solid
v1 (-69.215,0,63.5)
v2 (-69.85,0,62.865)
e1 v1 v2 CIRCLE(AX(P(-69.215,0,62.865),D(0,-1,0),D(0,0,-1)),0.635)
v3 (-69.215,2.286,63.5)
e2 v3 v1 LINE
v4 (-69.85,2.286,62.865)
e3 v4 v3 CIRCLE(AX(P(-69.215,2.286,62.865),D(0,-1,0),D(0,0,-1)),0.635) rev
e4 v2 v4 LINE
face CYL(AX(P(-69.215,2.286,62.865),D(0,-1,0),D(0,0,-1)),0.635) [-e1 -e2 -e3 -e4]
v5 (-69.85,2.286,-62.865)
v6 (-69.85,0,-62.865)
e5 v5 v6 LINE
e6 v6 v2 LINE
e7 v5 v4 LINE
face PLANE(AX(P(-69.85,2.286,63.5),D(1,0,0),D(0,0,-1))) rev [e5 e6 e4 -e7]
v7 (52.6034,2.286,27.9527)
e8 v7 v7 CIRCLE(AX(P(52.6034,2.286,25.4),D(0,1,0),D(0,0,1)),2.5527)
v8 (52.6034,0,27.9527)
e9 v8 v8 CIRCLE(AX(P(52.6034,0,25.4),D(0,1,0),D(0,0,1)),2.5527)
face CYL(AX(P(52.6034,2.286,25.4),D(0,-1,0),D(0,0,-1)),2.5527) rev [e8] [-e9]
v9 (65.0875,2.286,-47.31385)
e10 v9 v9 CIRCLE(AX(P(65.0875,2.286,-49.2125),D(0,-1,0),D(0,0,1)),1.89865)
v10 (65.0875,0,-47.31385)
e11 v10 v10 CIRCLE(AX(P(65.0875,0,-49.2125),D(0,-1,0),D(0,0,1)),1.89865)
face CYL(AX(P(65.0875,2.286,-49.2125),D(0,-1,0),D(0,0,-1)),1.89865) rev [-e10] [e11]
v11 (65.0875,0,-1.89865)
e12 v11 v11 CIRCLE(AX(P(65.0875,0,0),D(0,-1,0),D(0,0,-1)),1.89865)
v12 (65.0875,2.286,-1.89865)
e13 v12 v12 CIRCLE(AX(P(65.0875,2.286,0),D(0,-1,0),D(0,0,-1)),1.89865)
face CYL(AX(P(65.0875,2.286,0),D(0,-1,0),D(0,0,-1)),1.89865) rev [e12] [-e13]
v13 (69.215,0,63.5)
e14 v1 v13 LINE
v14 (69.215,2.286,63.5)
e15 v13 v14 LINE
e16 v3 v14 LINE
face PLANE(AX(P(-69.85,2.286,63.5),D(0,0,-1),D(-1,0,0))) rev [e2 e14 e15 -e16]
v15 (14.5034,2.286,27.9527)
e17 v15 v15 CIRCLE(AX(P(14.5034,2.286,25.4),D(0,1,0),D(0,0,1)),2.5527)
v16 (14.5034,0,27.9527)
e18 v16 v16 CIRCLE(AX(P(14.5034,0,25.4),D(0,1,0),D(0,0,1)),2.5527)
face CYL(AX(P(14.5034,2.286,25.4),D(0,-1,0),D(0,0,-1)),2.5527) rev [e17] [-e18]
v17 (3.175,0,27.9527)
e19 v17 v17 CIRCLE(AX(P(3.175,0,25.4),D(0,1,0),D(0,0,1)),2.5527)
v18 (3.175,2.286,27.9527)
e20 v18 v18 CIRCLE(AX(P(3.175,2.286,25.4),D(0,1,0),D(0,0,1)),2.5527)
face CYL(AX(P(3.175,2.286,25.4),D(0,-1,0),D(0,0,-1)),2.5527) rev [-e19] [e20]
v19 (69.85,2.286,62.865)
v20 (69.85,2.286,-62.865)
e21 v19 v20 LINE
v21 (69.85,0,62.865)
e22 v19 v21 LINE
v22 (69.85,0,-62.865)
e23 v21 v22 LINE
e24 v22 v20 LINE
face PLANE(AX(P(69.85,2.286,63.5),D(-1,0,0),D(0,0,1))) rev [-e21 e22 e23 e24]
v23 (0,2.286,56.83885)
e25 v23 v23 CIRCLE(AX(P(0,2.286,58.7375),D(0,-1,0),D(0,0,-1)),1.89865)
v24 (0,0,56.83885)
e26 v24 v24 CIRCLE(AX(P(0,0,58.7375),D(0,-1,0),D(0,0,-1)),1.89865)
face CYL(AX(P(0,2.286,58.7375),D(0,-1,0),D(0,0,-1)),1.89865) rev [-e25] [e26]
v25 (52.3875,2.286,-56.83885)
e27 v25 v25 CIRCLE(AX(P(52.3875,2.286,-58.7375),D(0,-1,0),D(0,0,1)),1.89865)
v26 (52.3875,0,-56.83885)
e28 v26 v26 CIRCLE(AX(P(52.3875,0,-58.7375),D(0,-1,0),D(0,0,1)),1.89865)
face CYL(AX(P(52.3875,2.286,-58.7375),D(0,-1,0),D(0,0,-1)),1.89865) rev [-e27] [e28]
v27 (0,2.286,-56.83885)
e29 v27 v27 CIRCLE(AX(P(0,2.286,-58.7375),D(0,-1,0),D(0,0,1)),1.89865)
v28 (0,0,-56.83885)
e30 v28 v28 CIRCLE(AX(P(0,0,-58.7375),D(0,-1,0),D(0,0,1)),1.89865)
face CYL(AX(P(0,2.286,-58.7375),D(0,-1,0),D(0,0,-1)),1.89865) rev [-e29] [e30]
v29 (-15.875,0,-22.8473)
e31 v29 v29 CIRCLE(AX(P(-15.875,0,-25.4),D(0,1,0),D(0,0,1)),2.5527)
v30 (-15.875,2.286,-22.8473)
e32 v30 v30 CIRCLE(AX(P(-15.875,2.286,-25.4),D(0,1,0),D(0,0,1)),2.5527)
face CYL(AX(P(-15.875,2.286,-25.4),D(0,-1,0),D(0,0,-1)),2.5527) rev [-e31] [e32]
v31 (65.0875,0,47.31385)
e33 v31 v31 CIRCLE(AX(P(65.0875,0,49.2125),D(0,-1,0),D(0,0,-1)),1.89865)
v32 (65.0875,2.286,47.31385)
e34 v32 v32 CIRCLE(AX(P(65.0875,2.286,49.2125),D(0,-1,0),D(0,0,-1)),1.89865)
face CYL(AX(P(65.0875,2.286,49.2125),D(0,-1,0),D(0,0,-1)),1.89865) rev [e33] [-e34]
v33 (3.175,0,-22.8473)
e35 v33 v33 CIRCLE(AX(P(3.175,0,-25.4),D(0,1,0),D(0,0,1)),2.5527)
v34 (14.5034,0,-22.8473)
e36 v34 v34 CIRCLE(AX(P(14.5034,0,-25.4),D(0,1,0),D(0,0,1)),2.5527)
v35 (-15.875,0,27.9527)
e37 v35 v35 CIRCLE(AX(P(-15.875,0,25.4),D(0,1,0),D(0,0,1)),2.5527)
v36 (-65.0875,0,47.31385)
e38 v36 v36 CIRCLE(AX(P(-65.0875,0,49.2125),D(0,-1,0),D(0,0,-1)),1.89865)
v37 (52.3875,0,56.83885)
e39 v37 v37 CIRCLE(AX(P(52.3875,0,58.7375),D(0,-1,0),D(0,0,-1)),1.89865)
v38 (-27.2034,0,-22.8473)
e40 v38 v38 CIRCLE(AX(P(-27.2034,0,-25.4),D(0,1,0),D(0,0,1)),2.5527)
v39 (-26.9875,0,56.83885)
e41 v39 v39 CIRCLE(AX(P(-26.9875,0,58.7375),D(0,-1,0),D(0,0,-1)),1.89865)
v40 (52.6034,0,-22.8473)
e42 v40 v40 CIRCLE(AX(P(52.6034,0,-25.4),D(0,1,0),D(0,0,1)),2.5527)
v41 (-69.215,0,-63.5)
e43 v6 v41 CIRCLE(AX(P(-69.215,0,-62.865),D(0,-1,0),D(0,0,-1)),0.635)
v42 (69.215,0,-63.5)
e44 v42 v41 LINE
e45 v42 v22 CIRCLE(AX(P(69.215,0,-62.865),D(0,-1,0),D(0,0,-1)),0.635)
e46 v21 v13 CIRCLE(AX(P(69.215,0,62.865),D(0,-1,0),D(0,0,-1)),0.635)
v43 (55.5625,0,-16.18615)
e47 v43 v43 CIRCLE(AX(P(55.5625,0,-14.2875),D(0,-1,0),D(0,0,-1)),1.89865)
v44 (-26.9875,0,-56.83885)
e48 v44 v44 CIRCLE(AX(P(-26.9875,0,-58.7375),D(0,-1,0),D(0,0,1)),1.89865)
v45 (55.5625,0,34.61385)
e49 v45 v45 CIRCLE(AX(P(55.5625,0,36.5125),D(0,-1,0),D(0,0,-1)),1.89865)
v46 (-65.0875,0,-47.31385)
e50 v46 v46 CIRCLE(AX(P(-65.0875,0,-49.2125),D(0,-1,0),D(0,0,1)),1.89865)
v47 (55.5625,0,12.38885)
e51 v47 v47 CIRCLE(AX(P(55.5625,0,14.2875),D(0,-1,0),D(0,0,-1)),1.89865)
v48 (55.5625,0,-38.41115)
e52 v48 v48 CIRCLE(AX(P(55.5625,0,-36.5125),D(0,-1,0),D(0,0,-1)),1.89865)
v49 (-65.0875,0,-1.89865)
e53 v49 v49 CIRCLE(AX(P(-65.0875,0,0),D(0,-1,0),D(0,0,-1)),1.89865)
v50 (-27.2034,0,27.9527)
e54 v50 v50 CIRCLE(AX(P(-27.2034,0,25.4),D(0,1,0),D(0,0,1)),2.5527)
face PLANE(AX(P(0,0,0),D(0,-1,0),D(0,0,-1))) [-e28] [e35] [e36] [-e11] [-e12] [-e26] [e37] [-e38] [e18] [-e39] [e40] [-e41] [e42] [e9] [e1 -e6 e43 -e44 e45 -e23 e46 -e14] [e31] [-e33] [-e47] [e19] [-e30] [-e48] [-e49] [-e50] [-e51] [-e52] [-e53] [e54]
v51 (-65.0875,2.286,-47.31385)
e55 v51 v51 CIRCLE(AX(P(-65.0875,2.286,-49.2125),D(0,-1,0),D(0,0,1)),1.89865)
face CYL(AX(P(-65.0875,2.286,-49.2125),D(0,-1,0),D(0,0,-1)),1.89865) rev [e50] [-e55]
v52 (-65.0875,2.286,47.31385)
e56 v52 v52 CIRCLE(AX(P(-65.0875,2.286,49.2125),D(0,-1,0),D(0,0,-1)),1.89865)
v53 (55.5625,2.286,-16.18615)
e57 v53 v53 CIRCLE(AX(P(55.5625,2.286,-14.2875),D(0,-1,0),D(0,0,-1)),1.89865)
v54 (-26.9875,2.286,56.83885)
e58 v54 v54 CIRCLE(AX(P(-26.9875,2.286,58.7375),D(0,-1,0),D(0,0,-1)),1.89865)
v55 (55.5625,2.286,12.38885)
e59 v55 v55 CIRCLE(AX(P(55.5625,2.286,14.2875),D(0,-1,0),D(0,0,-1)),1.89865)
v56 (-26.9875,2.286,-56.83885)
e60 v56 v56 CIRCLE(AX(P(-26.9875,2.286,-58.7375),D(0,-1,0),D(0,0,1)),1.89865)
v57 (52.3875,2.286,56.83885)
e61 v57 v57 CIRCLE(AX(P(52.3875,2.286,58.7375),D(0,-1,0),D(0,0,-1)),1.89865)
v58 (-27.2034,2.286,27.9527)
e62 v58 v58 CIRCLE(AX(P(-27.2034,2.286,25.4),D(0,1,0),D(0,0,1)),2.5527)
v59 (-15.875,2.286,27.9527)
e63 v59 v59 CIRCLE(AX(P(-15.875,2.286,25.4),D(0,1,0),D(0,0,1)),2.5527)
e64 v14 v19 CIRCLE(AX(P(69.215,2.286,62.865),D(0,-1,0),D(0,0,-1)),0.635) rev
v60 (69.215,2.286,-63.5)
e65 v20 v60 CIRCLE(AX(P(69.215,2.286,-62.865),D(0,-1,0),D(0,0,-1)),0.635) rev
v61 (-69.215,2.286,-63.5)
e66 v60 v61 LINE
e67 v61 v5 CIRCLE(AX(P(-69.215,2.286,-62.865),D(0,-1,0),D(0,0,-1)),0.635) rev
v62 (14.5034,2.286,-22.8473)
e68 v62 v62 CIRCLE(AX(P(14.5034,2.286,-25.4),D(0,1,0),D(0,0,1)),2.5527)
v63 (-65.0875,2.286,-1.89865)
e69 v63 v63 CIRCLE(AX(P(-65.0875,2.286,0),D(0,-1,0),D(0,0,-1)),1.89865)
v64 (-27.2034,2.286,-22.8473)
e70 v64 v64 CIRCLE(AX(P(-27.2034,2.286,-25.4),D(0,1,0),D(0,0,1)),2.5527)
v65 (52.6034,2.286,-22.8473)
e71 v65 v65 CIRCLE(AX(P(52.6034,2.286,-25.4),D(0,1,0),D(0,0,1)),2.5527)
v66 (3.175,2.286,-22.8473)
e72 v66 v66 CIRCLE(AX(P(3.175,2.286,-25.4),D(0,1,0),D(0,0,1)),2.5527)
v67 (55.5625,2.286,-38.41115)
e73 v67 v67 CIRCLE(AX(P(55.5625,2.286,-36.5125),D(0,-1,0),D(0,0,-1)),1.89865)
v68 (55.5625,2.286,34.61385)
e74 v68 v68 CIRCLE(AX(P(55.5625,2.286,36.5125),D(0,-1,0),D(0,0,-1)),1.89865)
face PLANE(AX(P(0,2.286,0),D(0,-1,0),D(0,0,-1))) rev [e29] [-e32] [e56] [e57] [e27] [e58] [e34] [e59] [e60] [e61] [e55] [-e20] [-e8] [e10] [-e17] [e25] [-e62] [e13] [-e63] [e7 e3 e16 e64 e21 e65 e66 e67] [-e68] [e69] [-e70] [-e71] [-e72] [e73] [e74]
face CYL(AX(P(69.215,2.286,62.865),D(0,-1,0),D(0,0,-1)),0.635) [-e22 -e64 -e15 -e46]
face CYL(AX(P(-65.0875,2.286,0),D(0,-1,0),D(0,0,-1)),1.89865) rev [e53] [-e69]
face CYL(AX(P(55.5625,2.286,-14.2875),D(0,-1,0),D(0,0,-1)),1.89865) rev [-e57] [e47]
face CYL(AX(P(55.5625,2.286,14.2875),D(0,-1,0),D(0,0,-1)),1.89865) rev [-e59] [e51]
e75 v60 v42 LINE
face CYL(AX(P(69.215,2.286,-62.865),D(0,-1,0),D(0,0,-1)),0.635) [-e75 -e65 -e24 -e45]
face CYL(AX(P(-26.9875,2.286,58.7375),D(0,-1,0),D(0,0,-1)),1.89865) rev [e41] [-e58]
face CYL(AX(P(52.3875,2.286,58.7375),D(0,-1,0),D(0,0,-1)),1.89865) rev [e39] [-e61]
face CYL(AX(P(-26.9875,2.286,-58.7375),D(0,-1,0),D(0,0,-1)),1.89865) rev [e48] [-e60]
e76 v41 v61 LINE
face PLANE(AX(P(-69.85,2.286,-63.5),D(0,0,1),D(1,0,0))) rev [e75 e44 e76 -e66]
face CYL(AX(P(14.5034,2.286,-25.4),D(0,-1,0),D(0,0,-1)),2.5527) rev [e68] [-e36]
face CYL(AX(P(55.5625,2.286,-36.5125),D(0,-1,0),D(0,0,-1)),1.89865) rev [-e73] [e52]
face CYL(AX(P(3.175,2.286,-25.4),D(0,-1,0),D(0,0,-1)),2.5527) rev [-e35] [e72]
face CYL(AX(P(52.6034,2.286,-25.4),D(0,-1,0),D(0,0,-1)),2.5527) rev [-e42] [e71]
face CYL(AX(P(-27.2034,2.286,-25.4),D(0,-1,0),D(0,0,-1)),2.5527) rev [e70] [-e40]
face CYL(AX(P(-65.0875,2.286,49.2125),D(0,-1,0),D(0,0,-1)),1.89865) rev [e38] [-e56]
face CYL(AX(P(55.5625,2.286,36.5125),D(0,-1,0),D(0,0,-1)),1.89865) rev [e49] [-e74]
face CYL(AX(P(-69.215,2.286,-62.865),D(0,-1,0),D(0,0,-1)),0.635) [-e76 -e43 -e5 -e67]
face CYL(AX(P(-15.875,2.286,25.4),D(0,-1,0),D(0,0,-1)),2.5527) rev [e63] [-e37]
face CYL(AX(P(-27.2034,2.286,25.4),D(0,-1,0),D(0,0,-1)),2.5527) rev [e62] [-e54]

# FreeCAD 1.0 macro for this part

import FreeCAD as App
import Part
import Sketcher

V = App.Vector
Q = App.Units.Quantity


def edges_at(feature, points):
    """Names of the edges that pass closest to the given points."""
    edges = feature.Shape.Edges
    near = lambda p: min(range(len(edges)), key=lambda i: edges[i].distToShape(Part.Vertex(*p))[0])
    return sorted({f"Edge{near(p) + 1}" for p in points})

doc = App.newDocument("Part")
params = doc.addObject("Spreadsheet::Sheet", "Params")
for row, (alias, value) in enumerate([
    ("sketch1_height", "5 in"),
    ("sketch1_diameter", "0.201 in"),
    ("sketch1_width", "5.5 in"),
    ("pad1_length", "0.09 in"),
    ("fillet_radius", "0.025 in"),
], start=1):
    params.set(f"A{row}", alias)
    params.set(f"B{row}", "=" + value)
    params.setAlias(f"B{row}", alias)

body = doc.addObject("PartDesign::Body", "Body")

sketch1 = body.newObject("Sketcher::SketchObject", "Sketch")
sketch1.AttachmentSupport = (doc.getObject("XZ_Plane"), [""])
sketch1.MapMode = "FlatFace"
sketch1.addGeometry(Part.LineSegment(V(-69.8, -63.5, 0), V(-69.8, 63.5, 0)), False)
sketch1.addGeometry(Part.LineSegment(V(-69.8, 63.5, 0), V(69.8, 63.5, 0)), False)
sketch1.addGeometry(Part.LineSegment(V(69.8, 63.5, 0), V(69.8, -63.5, 0)), False)
sketch1.addGeometry(Part.LineSegment(V(69.8, -63.5, 0), V(-69.8, -63.5, 0)), False)
sketch1.addGeometry(Part.Circle(V(-27.2, 25.4, 0), V(0, 0, 1), 2.6), False)
sketch1.addGeometry(Part.Circle(V(-15.9, 25.4, 0), V(0, 0, 1), 2.6), False)
sketch1.addGeometry(Part.Circle(V(3.2, 25.4, 0), V(0, 0, 1), 2.6), False)
sketch1.addGeometry(Part.Circle(V(14.5, 25.4, 0), V(0, 0, 1), 2.6), False)
sketch1.addGeometry(Part.Circle(V(52.6, 25.4, 0), V(0, 0, 1), 2.6), False)
sketch1.addGeometry(Part.Circle(V(-27.2, -25.4, 0), V(0, 0, 1), 2.6), False)
sketch1.addGeometry(Part.Circle(V(-15.9, -25.4, 0), V(0, 0, 1), 2.6), False)
sketch1.addGeometry(Part.Circle(V(3.2, -25.4, 0), V(0, 0, 1), 2.6), False)
sketch1.addGeometry(Part.Circle(V(14.5, -25.4, 0), V(0, 0, 1), 2.6), False)
sketch1.addGeometry(Part.Circle(V(52.6, -25.4, 0), V(0, 0, 1), 2.6), False)
sketch1.addConstraint(Sketcher.Constraint("Coincident", 0, 2, 1, 1))
sketch1.addConstraint(Sketcher.Constraint("Coincident", 1, 2, 2, 1))
sketch1.addConstraint(Sketcher.Constraint("Coincident", 2, 2, 3, 1))
sketch1.addConstraint(Sketcher.Constraint("Coincident", 3, 2, 0, 1))
sketch1.addConstraint(Sketcher.Constraint("Vertical", 0))
sketch1.addConstraint(Sketcher.Constraint("Horizontal", 1))
sketch1.addConstraint(Sketcher.Constraint("Vertical", 2))
sketch1.addConstraint(Sketcher.Constraint("Horizontal", 3))
sketch1.addConstraint(Sketcher.Constraint("Equal", 4, 5))
sketch1.addConstraint(Sketcher.Constraint("Equal", 5, 6))
sketch1.addConstraint(Sketcher.Constraint("Equal", 6, 7))
sketch1.addConstraint(Sketcher.Constraint("Equal", 7, 8))
sketch1.addConstraint(Sketcher.Constraint("Equal", 8, 9))
sketch1.addConstraint(Sketcher.Constraint("Equal", 9, 10))
sketch1.addConstraint(Sketcher.Constraint("Equal", 10, 11))
sketch1.addConstraint(Sketcher.Constraint("Equal", 11, 12))
sketch1.addConstraint(Sketcher.Constraint("Equal", 12, 13))
sketch1.addConstraint(Sketcher.Constraint("Symmetric", 0, 2, 2, 2, -1, 1))
sketch1.addConstraint(Sketcher.Constraint("Symmetric", 4, 3, 9, 3, -1))
sketch1.addConstraint(Sketcher.Constraint("Symmetric", 5, 3, 10, 3, -1))
sketch1.addConstraint(Sketcher.Constraint("Symmetric", 6, 3, 11, 3, -1))
sketch1.addConstraint(Sketcher.Constraint("Symmetric", 7, 3, 12, 3, -1))
sketch1.addConstraint(Sketcher.Constraint("Symmetric", 8, 3, 13, 3, -1))
sketch1.addConstraint(Sketcher.Constraint("Horizontal", 4, 3, 5, 3))
sketch1.addConstraint(Sketcher.Constraint("Horizontal", 5, 3, 6, 3))
sketch1.addConstraint(Sketcher.Constraint("Horizontal", 6, 3, 7, 3))
sketch1.addConstraint(Sketcher.Constraint("Horizontal", 7, 3, 8, 3))
sketch1.addConstraint(Sketcher.Constraint("DistanceY", 0, 1, 0, 2, Q("5 in")))
sketch1.addConstraint(Sketcher.Constraint("Diameter", 4, Q("0.201 in")))
sketch1.addConstraint(Sketcher.Constraint("DistanceX", 1, 1, 1, 2, Q("5.5 in")))
sketch1.addConstraint(Sketcher.Constraint("DistanceY", -1, 1, 4, 3, Q("1 in")))
sketch1.addConstraint(Sketcher.Constraint("DistanceX", 7, 3, 8, 3, Q("1.5 in")))
sketch1.addConstraint(Sketcher.Constraint("DistanceX", 5, 3, 6, 3, Q("0.75 in")))
sketch1.addConstraint(Sketcher.Constraint("DistanceX", 4, 3, -1, 1, Q("1.071 in")))
sketch1.addConstraint(Sketcher.Constraint("DistanceX", 5, 3, -1, 1, Q("0.625 in")))
sketch1.addConstraint(Sketcher.Constraint("DistanceX", -1, 1, 7, 3, Q("0.571 in")))
sketch1.setExpression("Constraints[27]", "Params.sketch1_height")
sketch1.setExpression("Constraints[28]", "Params.sketch1_diameter")
sketch1.setExpression("Constraints[29]", "Params.sketch1_width")
pad1 = body.newObject("PartDesign::Pad", "Pad")
pad1.Profile = sketch1
pad1.setExpression("Length", "Params.pad1_length")
pad1.Reversed = True

sketch2 = body.newObject("Sketcher::SketchObject", "Sketch001")
sketch2.AttachmentSupport = (doc.getObject("XZ_Plane"), [""])
sketch2.MapMode = "FlatFace"
sketch2.addGeometry(Part.Circle(V(0, 58.7, 0), V(0, 0, 1), 1.9), False)
sketch2.addGeometry(Part.Circle(V(-65.1, 49.2, 0), V(0, 0, 1), 1.9), False)
sketch2.addGeometry(Part.Circle(V(65.1, 49.2, 0), V(0, 0, 1), 1.9), False)
sketch2.addGeometry(Part.Circle(V(-65.1, 0, 0), V(0, 0, 1), 1.9), False)
sketch2.addGeometry(Part.Circle(V(65.1, 0, 0), V(0, 0, 1), 1.9), False)
sketch2.addGeometry(Part.Circle(V(52.4, 58.7, 0), V(0, 0, 1), 1.9), False)
sketch2.addGeometry(Part.Circle(V(-27, 58.7, 0), V(0, 0, 1), 1.9), False)
sketch2.addGeometry(Part.Circle(V(-27, -58.7, 0), V(0, 0, 1), 1.9), False)
sketch2.addGeometry(Part.Circle(V(52.4, -58.7, 0), V(0, 0, 1), 1.9), False)
sketch2.addGeometry(Part.Circle(V(65.1, -49.2, 0), V(0, 0, 1), 1.9), False)
sketch2.addGeometry(Part.Circle(V(-65.1, -49.2, 0), V(0, 0, 1), 1.9), False)
sketch2.addGeometry(Part.Circle(V(0, -58.7, 0), V(0, 0, 1), 1.9), False)
sketch2.addConstraint(Sketcher.Constraint("Equal", 0, 1))
sketch2.addConstraint(Sketcher.Constraint("Equal", 1, 2))
sketch2.addConstraint(Sketcher.Constraint("Equal", 2, 3))
sketch2.addConstraint(Sketcher.Constraint("Equal", 3, 4))
sketch2.addConstraint(Sketcher.Constraint("Equal", 4, 5))
sketch2.addConstraint(Sketcher.Constraint("Equal", 5, 6))
sketch2.addConstraint(Sketcher.Constraint("Equal", 6, 7))
sketch2.addConstraint(Sketcher.Constraint("Equal", 7, 8))
sketch2.addConstraint(Sketcher.Constraint("Equal", 8, 9))
sketch2.addConstraint(Sketcher.Constraint("Equal", 9, 10))
sketch2.addConstraint(Sketcher.Constraint("Equal", 10, 11))
sketch2.addConstraint(Sketcher.Constraint("Symmetric", 3, 3, 4, 3, -1, 1))
sketch2.addConstraint(Sketcher.Constraint("Symmetric", 1, 3, 9, 3, -1, 1))
sketch2.addConstraint(Sketcher.Constraint("Symmetric", 2, 3, 10, 3, -1, 1))
sketch2.addConstraint(Sketcher.Constraint("Symmetric", 0, 3, 11, 3, -1, 1))
sketch2.addConstraint(Sketcher.Constraint("Symmetric", 1, 3, 2, 3, -2))
sketch2.addConstraint(Sketcher.Constraint("Symmetric", 6, 3, 7, 3, -1))
sketch2.addConstraint(Sketcher.Constraint("Symmetric", 5, 3, 8, 3, -1))
sketch2.addConstraint(Sketcher.Constraint("PointOnObject", 0, 3, -2))
sketch2.addConstraint(Sketcher.Constraint("PointOnObject", 3, 3, -1))
sketch2.addConstraint(Sketcher.Constraint("Horizontal", 0, 3, 5, 3))
sketch2.addConstraint(Sketcher.Constraint("Horizontal", 5, 3, 6, 3))
sketch2.addConstraint(Sketcher.Constraint("Vertical", 1, 3, 3, 3))
sketch2.addConstraint(Sketcher.Constraint("Diameter", 0, Q("0.1495 in")))
sketch2.addConstraint(Sketcher.Constraint("DistanceX", 5, 3, 2, 3, Q("0.5 in")))
sketch2.addConstraint(Sketcher.Constraint("DistanceX", 1, 3, 6, 3, Q("1.5 in")))
sketch2.addConstraint(Sketcher.Constraint("DistanceY", 7, 3, 1, 3, Q("4.25 in")))
sketch2.addConstraint(Sketcher.Constraint("DistanceY", -1, 1, 0, 3, Q("2.3125 in")))
sketch2.addConstraint(Sketcher.Constraint("DistanceX", 1, 3, -1, 1, Q("2.5625 in")))
pocket1 = body.newObject("PartDesign::Pocket", "Pocket")
pocket1.Profile = sketch2
pocket1.Type = "ThroughAll"
doc.recompute()

fillet = body.newObject("PartDesign::Fillet", "Fillet")
fillet.Base = (pocket1, edges_at(pocket1, [
    (69.85, 1.143, 63.5),
    (-69.85, 1.143, 63.5),
    (-69.85, 1.143, -63.5),
    (69.85, 1.143, -63.5),
]))
fillet.setExpression("Radius", "Params.fillet_radius")

sketch3 = body.newObject("Sketcher::SketchObject", "Sketch002")
sketch3.AttachmentSupport = (doc.getObject("XZ_Plane"), [""])
sketch3.MapMode = "FlatFace"
sketch3.addGeometry(Part.Circle(V(55.6, 36.5, 0), V(0, 0, 1), 1.9), False)
sketch3.addGeometry(Part.Circle(V(55.6, 14.3, 0), V(0, 0, 1), 1.9), False)
sketch3.addGeometry(Part.Circle(V(55.6, -14.3, 0), V(0, 0, 1), 1.9), False)
sketch3.addGeometry(Part.Circle(V(55.6, -36.5, 0), V(0, 0, 1), 1.9), False)
sketch3.addConstraint(Sketcher.Constraint("Equal", 0, 1))
sketch3.addConstraint(Sketcher.Constraint("Equal", 1, 2))
sketch3.addConstraint(Sketcher.Constraint("Equal", 2, 3))
sketch3.addConstraint(Sketcher.Constraint("Symmetric", 1, 3, 2, 3, -1))
sketch3.addConstraint(Sketcher.Constraint("Symmetric", 0, 3, 3, 3, -1))
sketch3.addConstraint(Sketcher.Constraint("Vertical", 0, 3, 1, 3))
sketch3.addConstraint(Sketcher.Constraint("DistanceY", 2, 3, 0, 3, Q("2 in")))
sketch3.addConstraint(Sketcher.Constraint("Diameter", 0, Q("0.1495 in")))
sketch3.addConstraint(Sketcher.Constraint("DistanceX", -1, 1, 0, 3, Q("2.1875 in")))
sketch3.addConstraint(Sketcher.Constraint("DistanceY", -1, 1, 0, 3, Q("1.4375 in")))
pocket2 = body.newObject("PartDesign::Pocket", "Pocket001")
pocket2.Profile = sketch3
pocket2.Type = "ThroughAll"

doc.recompute()
